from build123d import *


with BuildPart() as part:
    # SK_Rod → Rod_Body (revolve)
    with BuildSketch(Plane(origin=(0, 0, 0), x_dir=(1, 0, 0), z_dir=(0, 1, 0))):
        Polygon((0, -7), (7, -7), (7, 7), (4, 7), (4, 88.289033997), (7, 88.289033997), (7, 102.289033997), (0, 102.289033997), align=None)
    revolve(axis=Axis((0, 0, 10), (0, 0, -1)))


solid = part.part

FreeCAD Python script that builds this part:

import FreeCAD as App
import Part
import Sketcher

V = App.Vector


def add_polygon(sketch, points):
    """Adds a closed chain of lines whose ends are joined by coincident constraints."""
    first, n = sketch.GeometryCount, len(points)
    for a, b in zip(points, points[1:] + points[:1]):
        sketch.addGeometry(Part.LineSegment(App.Vector(*a, 0), App.Vector(*b, 0)), False)
    for i in range(n):
        sketch.addConstraint(Sketcher.Constraint("Coincident", first + i, 2, first + (i + 1) % n, 1))

doc = App.newDocument("Part")
params = doc.addObject("Spreadsheet::Sheet", "Params")
for row, (alias, value) in enumerate([
    ("sketch1_width", "7 mm"),
    ("sketch1_width2", "3 mm"),
    ("sketch1_height", "14 mm"),
    ("revolution_angle", "360 deg"),
], start=1):
    params.set(f"A{row}", alias)
    params.set(f"B{row}", "=" + value)
    params.setAlias(f"B{row}", alias)

body = doc.addObject("PartDesign::Body", "Body")

# Sketch on XZ plane
sketch1 = body.newObject("Sketcher::SketchObject", "Sketch")
sketch1.AttachmentSupport = (doc.getObject("XZ_Plane"), [""])
sketch1.MapMode = "FlatFace"
add_polygon(sketch1, [(0, 7), (7, 7), (7, -7), (4, -7), (4, -88.3), (7, -88.3), (7, -102.3), (0, -102.3)])  # lines 0-7
sketch1.addConstraint(Sketcher.Constraint("Horizontal", 0))
sketch1.addConstraint(Sketcher.Constraint("Vertical", 1))
sketch1.addConstraint(Sketcher.Constraint("Horizontal", 2))
sketch1.addConstraint(Sketcher.Constraint("Vertical", 3))
sketch1.addConstraint(Sketcher.Constraint("Horizontal", 4))
sketch1.addConstraint(Sketcher.Constraint("Vertical", 5))
sketch1.addConstraint(Sketcher.Constraint("Horizontal", 6))
sketch1.addConstraint(Sketcher.Constraint("Vertical", 7))
sketch1.addConstraint(Sketcher.Constraint("PointOnObject", 6, 2, -2))
sketch1.addConstraint(Sketcher.Constraint("Vertical", 1, 2, 4, 2))
sketch1.addConstraint(Sketcher.Constraint("Equal", 1, 5))
sketch1.addConstraint(Sketcher.Constraint("DistanceX", 0, 1, 0, 2, 7.0))
sketch1.addConstraint(Sketcher.Constraint("DistanceX", 2, 2, 2, 1, 3.0))
sketch1.addConstraint(Sketcher.Constraint("DistanceY", 1, 2, 1, 1, 14.0))
sketch1.addConstraint(Sketcher.Constraint("DistanceY", -1, 1, 0, 2, 7.0))
sketch1.addConstraint(Sketcher.Constraint("DistanceY", 3, 2, 3, 1, 81.289034))
sketch1.setExpression("Constraints[19]", "Params.sketch1_width")
sketch1.setExpression("Constraints[20]", "Params.sketch1_width2")
sketch1.setExpression("Constraints[21]", "Params.sketch1_height")
revolution = body.newObject("PartDesign::Revolution", "Revolution")
revolution.Profile = sketch1
revolution.ReferenceAxis = (sketch1, ["V_Axis"])
revolution.setExpression("Angle", "Params.revolution_angle")

doc.recompute()
